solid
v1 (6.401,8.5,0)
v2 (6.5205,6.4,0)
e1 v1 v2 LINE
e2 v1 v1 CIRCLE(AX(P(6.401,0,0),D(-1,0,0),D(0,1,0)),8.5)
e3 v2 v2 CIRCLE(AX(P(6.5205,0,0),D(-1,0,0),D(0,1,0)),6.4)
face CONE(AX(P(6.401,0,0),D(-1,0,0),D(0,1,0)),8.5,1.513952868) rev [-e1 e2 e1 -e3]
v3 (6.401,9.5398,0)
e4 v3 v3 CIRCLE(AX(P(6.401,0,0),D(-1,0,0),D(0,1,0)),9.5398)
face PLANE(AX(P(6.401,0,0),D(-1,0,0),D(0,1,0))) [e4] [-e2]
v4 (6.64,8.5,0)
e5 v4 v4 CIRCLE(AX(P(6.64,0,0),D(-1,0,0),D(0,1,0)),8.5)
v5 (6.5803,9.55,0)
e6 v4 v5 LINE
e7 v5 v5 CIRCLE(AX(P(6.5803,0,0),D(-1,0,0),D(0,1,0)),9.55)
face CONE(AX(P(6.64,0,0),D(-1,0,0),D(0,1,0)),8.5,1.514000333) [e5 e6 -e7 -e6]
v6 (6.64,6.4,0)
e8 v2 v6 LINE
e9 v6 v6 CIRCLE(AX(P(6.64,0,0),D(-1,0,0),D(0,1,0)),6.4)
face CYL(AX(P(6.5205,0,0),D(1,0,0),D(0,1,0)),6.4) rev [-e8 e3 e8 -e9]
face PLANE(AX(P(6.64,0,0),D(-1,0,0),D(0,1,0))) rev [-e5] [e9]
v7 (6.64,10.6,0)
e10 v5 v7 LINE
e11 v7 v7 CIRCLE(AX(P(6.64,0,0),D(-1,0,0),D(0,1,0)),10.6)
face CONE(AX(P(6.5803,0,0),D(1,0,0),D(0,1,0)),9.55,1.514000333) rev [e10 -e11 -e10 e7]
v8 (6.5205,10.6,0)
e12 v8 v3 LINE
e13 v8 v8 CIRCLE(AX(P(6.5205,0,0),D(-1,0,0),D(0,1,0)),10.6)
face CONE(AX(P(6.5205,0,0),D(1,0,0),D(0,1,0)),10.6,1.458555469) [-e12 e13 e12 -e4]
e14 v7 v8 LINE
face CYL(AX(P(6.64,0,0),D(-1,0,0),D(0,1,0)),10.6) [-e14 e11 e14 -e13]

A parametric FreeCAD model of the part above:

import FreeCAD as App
import Part
import Sketcher
from FreeCAD import Vector
Q = App.Units.Quantity


def add_polygon(sketch, points):
    """Adds a closed chain of lines whose ends are joined by coincident constraints."""
    first, n = sketch.GeometryCount, len(points)
    for a, b in zip(points, points[1:] + points[:1]):
        sketch.addGeometry(Part.LineSegment(App.Vector(*a, 0), App.Vector(*b, 0)), False)
    for i in range(n):
        sketch.addConstraint(Sketcher.Constraint("Coincident", first + i, 2, first + (i + 1) % n, 1))

doc = App.newDocument("Part")
body = doc.addObject("PartDesign::Body", "Body")

sketch1 = doc.addObject("Sketcher::SketchObject", "Sketch")
body.addObject(sketch1)
sketch1.AttachmentSupport = (doc.XY_Plane, [""])
sketch1.MapMode = "FlatFace"
add_polygon(sketch1, [(6.5205, 10.6), (6.401, 9.5398), (6.401, 8.5), (6.5205, 6.4), (6.64, 6.4), (6.64, 8.5), (6.5803, 9.55), (6.64, 10.6)])
sketch1.addConstraint([
    Sketcher.Constraint("Vertical", 1),
    Sketcher.Constraint("Horizontal", 3),
    Sketcher.Constraint("Vertical", 4),
    Sketcher.Constraint("Horizontal", 7),
    Sketcher.Constraint("Parallel", 2, 5),
    Sketcher.Constraint("Horizontal", 1, 2, 4, 2),
    Sketcher.Constraint("Vertical", 4, 2, 6, 2),
    Sketcher.Constraint("Vertical", 2, 2, 7, 2),
    Sketcher.Constraint("Equal", 5, 6),
    Sketcher.Constraint("DistanceY", 4, 1, 4, 2, Q("2.1 mm")),
    Sketcher.Constraint("DistanceY", -1, 1, 1, 2, Q("8.5 mm")),
    Sketcher.Constraint("DistanceY", -1, 1, 6, 2, Q("10.6 mm")),
    Sketcher.Constraint("Angle", 0, Q("-96.431 deg")),
    Sketcher.Constraint("DistanceX", -1, 1, 3, 2, Q("6.64 mm")),
    Sketcher.Constraint("Distance", 0, Q("1.067 mm")),
    Sketcher.Constraint("DistanceX", 3, 1, 3, 2, Q("0.1195 mm")),
])
revolution = doc.addObject("PartDesign::Revolution", "Revolution")
body.addObject(revolution)
revolution.Profile = sketch1
revolution.ReferenceAxis = (sketch1, ["H_Axis"])
revolution.Angle = 360

doc.recompute()
